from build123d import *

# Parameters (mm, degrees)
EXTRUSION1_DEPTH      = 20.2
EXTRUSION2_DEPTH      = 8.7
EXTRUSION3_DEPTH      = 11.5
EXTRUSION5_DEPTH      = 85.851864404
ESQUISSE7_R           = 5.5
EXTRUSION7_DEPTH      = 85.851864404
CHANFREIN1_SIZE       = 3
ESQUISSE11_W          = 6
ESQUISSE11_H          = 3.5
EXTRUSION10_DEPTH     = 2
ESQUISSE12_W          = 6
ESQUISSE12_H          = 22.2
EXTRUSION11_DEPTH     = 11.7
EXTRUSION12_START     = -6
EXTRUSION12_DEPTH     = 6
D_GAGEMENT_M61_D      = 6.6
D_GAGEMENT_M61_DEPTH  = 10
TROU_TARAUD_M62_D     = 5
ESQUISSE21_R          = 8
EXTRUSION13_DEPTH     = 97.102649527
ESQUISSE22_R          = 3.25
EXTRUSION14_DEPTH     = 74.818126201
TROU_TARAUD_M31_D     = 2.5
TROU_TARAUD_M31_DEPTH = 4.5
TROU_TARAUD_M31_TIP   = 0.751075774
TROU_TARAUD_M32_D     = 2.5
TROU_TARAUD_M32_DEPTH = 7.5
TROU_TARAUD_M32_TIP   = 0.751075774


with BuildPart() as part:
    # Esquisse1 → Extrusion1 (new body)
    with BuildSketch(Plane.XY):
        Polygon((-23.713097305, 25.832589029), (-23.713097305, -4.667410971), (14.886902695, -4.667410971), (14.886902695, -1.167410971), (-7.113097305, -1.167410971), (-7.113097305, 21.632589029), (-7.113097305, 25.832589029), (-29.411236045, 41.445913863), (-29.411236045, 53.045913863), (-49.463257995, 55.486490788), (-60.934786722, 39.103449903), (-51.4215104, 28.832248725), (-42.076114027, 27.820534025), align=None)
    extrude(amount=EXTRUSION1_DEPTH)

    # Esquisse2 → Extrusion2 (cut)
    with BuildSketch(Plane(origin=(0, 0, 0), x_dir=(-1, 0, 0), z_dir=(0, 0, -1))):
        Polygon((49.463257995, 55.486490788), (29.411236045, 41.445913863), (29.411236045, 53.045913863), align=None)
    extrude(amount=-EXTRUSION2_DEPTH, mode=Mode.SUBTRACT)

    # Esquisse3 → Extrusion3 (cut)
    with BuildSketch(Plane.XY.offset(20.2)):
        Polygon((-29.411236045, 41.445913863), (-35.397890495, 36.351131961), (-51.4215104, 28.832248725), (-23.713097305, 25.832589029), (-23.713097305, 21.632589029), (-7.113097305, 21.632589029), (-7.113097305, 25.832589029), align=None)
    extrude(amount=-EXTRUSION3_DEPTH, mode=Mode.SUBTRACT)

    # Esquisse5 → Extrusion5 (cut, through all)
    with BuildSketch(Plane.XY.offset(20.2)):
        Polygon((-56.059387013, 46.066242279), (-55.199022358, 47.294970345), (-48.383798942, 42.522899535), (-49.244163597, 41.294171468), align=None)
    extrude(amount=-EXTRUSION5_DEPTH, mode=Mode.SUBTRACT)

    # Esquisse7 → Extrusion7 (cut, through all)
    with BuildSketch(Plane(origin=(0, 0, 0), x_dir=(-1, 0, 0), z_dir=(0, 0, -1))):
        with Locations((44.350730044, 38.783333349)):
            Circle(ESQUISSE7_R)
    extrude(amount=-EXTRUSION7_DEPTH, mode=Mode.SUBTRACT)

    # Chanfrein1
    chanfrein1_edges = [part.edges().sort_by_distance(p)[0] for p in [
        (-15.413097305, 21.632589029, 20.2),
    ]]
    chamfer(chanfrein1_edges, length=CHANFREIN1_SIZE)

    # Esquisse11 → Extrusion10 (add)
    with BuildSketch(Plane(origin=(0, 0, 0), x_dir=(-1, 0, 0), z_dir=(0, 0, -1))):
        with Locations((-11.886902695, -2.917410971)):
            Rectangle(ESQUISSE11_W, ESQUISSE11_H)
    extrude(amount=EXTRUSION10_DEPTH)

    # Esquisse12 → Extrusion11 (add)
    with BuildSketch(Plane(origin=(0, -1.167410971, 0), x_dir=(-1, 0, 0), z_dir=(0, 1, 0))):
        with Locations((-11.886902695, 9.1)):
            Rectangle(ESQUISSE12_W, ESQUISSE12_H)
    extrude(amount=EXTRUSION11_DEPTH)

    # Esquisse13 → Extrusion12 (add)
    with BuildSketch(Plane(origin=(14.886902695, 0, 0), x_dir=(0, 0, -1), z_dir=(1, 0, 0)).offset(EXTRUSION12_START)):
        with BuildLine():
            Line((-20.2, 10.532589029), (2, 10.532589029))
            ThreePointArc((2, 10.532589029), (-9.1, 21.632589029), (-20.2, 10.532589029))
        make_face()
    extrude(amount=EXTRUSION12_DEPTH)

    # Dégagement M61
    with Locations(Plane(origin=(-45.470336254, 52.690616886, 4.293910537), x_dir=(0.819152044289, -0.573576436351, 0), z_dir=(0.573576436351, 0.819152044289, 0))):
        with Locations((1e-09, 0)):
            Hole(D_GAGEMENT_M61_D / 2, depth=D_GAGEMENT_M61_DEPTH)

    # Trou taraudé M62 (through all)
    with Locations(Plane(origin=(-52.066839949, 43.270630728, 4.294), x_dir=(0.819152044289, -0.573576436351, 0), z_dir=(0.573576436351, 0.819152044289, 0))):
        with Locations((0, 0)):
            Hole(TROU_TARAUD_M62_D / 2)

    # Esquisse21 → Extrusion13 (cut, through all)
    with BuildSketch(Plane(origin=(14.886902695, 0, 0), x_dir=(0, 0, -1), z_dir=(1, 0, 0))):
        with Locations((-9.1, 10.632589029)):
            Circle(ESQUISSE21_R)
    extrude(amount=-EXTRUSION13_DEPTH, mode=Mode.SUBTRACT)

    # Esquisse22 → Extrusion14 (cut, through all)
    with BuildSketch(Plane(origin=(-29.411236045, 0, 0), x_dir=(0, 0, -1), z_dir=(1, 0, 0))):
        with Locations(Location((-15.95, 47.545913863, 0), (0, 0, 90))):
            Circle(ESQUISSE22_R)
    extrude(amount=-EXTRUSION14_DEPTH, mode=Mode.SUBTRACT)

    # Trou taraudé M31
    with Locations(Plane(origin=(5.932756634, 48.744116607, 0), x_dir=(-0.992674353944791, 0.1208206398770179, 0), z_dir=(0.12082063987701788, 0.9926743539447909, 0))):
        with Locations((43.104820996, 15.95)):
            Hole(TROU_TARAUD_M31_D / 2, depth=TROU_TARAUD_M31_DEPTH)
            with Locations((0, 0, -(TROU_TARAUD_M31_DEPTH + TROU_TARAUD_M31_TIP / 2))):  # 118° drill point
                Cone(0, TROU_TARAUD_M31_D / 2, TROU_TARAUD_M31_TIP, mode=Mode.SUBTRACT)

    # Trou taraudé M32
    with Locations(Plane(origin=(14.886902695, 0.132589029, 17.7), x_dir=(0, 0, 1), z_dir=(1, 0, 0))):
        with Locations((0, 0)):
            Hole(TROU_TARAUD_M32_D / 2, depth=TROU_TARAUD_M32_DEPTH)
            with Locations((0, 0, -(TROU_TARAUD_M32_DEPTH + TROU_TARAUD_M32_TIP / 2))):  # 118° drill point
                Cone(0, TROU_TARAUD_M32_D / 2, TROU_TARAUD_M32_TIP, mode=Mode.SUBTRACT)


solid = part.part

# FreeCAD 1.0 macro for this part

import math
import FreeCAD as App
import Part
import Sketcher
from FreeCAD import Vector
Q = App.Units.Quantity


def edges_at(feature, points):
    """Names of the edges that pass closest to the given points."""
    edges = feature.Shape.Edges
    near = lambda p: min(range(len(edges)), key=lambda i: edges[i].distToShape(Part.Vertex(*p))[0])
    return sorted({f"Edge{near(p) + 1}" for p in points})

doc = App.newDocument("Part")
body = doc.addObject("PartDesign::Body", "Body")

# Sketch on XY plane
sketch1 = doc.addObject("Sketcher::SketchObject", "Sketch")
body.addObject(sketch1)
sketch1.AttachmentSupport = (doc.XY_Plane, [""])
sketch1.MapMode = "FlatFace"
sketch1.addGeometry(Part.LineSegment(Vector(-23.713097, 25.832589, 0), Vector(-23.713097, -4.667411, 0)), False)
sketch1.addGeometry(Part.LineSegment(Vector(-23.713097, -4.667411, 0), Vector(14.886903, -4.667411, 0)), False)
sketch1.addGeometry(Part.LineSegment(Vector(14.886903, -4.667411, 0), Vector(14.886903, -1.167411, 0)), False)
sketch1.addGeometry(Part.LineSegment(Vector(14.886903, -1.167411, 0), Vector(-7.113097, -1.167411, 0)), False)
sketch1.addGeometry(Part.LineSegment(Vector(-7.113097, -1.167411, 0), Vector(-7.113097, 25.832589, 0)), False)
sketch1.addGeometry(Part.LineSegment(Vector(-7.113097, 25.832589, 0), Vector(-29.411236, 41.445914, 0)), False)
sketch1.addGeometry(Part.LineSegment(Vector(-29.411236, 41.445914, 0), Vector(-29.411236, 53.045914, 0)), False)
sketch1.addGeometry(Part.LineSegment(Vector(-29.411236, 53.045914, 0), Vector(-49.463258, 55.486491, 0)), False)
sketch1.addGeometry(Part.LineSegment(Vector(-49.463258, 55.486491, 0), Vector(-60.934787, 39.10345, 0)), False)
sketch1.addGeometry(Part.LineSegment(Vector(-60.934787, 39.10345, 0), Vector(-51.42151, 28.832249, 0)), False)
sketch1.addGeometry(Part.LineSegment(Vector(-51.42151, 28.832249, 0), Vector(-42.076114, 27.820534, 0)), False)
sketch1.addGeometry(Part.LineSegment(Vector(-42.076114, 27.820534, 0), Vector(-23.713097, 25.832589, 0)), False)
sketch1.addConstraint(Sketcher.Constraint("Coincident", 0, 2, 1, 1))
sketch1.addConstraint(Sketcher.Constraint("Coincident", 1, 2, 2, 1))
sketch1.addConstraint(Sketcher.Constraint("Coincident", 2, 2, 3, 1))
sketch1.addConstraint(Sketcher.Constraint("Coincident", 3, 2, 4, 1))
sketch1.addConstraint(Sketcher.Constraint("Coincident", 4, 2, 5, 1))
sketch1.addConstraint(Sketcher.Constraint("Coincident", 5, 2, 6, 1))
sketch1.addConstraint(Sketcher.Constraint("Coincident", 6, 2, 7, 1))
sketch1.addConstraint(Sketcher.Constraint("Coincident", 7, 2, 8, 1))
sketch1.addConstraint(Sketcher.Constraint("Coincident", 8, 2, 9, 1))
sketch1.addConstraint(Sketcher.Constraint("Coincident", 9, 2, 10, 1))
sketch1.addConstraint(Sketcher.Constraint("Coincident", 10, 2, 11, 1))
sketch1.addConstraint(Sketcher.Constraint("Coincident", 11, 2, 0, 1))
sketch1.addConstraint(Sketcher.Constraint("Vertical", 0))
sketch1.addConstraint(Sketcher.Constraint("Horizontal", 1))
sketch1.addConstraint(Sketcher.Constraint("Vertical", 2))
sketch1.addConstraint(Sketcher.Constraint("Horizontal", 3))
sketch1.addConstraint(Sketcher.Constraint("Vertical", 4))
sketch1.addConstraint(Sketcher.Constraint("Vertical", 6))
sketch1.addConstraint(Sketcher.Constraint("Perpendicular", 5, 8))
sketch1.addConstraint(Sketcher.Constraint("Parallel", 10, 11))
sketch1.addConstraint(Sketcher.Constraint("Horizontal", 4, 2, 11, 2))
sketch1.addConstraint(Sketcher.Constraint("DistanceX", 3, 2, 3, 1, 22.0))
sketch1.addConstraint(Sketcher.Constraint("DistanceY", 4, 1, 4, 2, 27.0))
sketch1.addConstraint(Sketcher.Constraint("Angle", 5, Q("145 deg")))
sketch1.addConstraint(Sketcher.Constraint("Distance", 8, 20.0))
sketch1.addConstraint(Sketcher.Constraint("Distance", 9, 14.0))
sketch1.addConstraint(Sketcher.Constraint("DistanceX", 1, 1, 1, 2, 38.6))
sketch1.addConstraint(Sketcher.Constraint("DistanceY", 0, 2, 0, 1, 30.5))
sketch1.addConstraint(Sketcher.Constraint("DistanceY", 6, 1, 6, 2, 11.6))
sketch1.addConstraint(Sketcher.Constraint("Distance", 7, 20.2))
sketch1.addConstraint(Sketcher.Constraint("Distance", 10, 9.4))
sketch1.addConstraint(Sketcher.Constraint("Distance", 5, 27.221001))
sketch1.addConstraint(Sketcher.Constraint("DistanceY", 4, 2, 7, 2, 29.653902))
sketch1.addConstraint(Sketcher.Constraint("DistanceY", 9, 2, 8, 2, 10.271201))
sketch1.addConstraint(Sketcher.Constraint("DistanceY", 0, 2, -1, 1, 4.667411))
sketch1.addConstraint(Sketcher.Constraint("DistanceX", 9, 2, -1, 1, 51.42151))
pad1 = doc.addObject("PartDesign::Pad", "Pad")
body.addObject(pad1)
pad1.Profile = sketch1
pad1.Length = 20.2

# Sketch on XY plane
sketch2 = doc.addObject("Sketcher::SketchObject", "Sketch001")
body.addObject(sketch2)
sketch2.AttachmentSupport = (doc.XY_Plane, [""])
sketch2.MapMode = "FlatFace"
sketch2.addGeometry(Part.LineSegment(Vector(-29.411236, 41.445914, 0), Vector(-49.463258, 55.486491, 0)), False)
sketch2.addGeometry(Part.LineSegment(Vector(-49.463258, 55.486491, 0), Vector(-29.411236, 53.045914, 0)), False)
sketch2.addGeometry(Part.LineSegment(Vector(-29.411236, 53.045914, 0), Vector(-29.411236, 41.445914, 0)), False)
sketch2.addConstraint(Sketcher.Constraint("Coincident", 0, 2, 1, 1))
sketch2.addConstraint(Sketcher.Constraint("Coincident", 1, 2, 2, 1))
sketch2.addConstraint(Sketcher.Constraint("Coincident", 2, 2, 0, 1))
sketch2.addConstraint(Sketcher.Constraint("Vertical", 2))
sketch2.addConstraint(Sketcher.Constraint("Angle", 0, Q("145 deg")))
sketch2.addConstraint(Sketcher.Constraint("DistanceY", 2, 2, 2, 1, 11.6))
sketch2.addConstraint(Sketcher.Constraint("Distance", 1, 20.2))
sketch2.addConstraint(Sketcher.Constraint("DistanceY", -1, 1, 0, 2, 55.486491))
sketch2.addConstraint(Sketcher.Constraint("DistanceX", 0, 2, -1, 1, 49.463258))
pocket1 = doc.addObject("PartDesign::Pocket", "Pocket")
body.addObject(pocket1)
pocket1.Profile = sketch2
pocket1.Length = 8.7
pocket1.Reversed = True

# Sketch on XY plane
sketch3 = doc.addObject("Sketcher::SketchObject", "Sketch002")
body.addObject(sketch3)
sketch3.AttachmentSupport = (doc.XY_Plane, [""])
sketch3.MapMode = "FlatFace"
sketch3.AttachmentOffset = App.Placement(Vector(0, 0, 20.2), App.Rotation())
sketch3.addGeometry(Part.LineSegment(Vector(-29.411236, 41.445914, 0), Vector(-35.39789, 36.351132, 0)), False)
sketch3.addGeometry(Part.LineSegment(Vector(-35.39789, 36.351132, 0), Vector(-51.42151, 28.832249, 0)), False)
sketch3.addGeometry(Part.LineSegment(Vector(-51.42151, 28.832249, 0), Vector(-23.713097, 25.832589, 0)), False)
sketch3.addGeometry(Part.LineSegment(Vector(-23.713097, 25.832589, 0), Vector(-23.713097, 21.632589, 0)), False)
sketch3.addGeometry(Part.LineSegment(Vector(-23.713097, 21.632589, 0), Vector(-7.113097, 21.632589, 0)), False)
sketch3.addGeometry(Part.LineSegment(Vector(-7.113097, 21.632589, 0), Vector(-7.113097, 25.832589, 0)), False)
sketch3.addGeometry(Part.LineSegment(Vector(-7.113097, 25.832589, 0), Vector(-29.411236, 41.445914, 0)), False)
sketch3.addConstraint(Sketcher.Constraint("Coincident", 0, 2, 1, 1))
sketch3.addConstraint(Sketcher.Constraint("Coincident", 1, 2, 2, 1))
sketch3.addConstraint(Sketcher.Constraint("Coincident", 2, 2, 3, 1))
sketch3.addConstraint(Sketcher.Constraint("Coincident", 3, 2, 4, 1))
sketch3.addConstraint(Sketcher.Constraint("Coincident", 4, 2, 5, 1))
sketch3.addConstraint(Sketcher.Constraint("Coincident", 5, 2, 6, 1))
sketch3.addConstraint(Sketcher.Constraint("Coincident", 6, 2, 0, 1))
sketch3.addConstraint(Sketcher.Constraint("Vertical", 3))
sketch3.addConstraint(Sketcher.Constraint("Horizontal", 4))
sketch3.addConstraint(Sketcher.Constraint("Vertical", 5))
sketch3.addConstraint(Sketcher.Constraint("Horizontal", 2, 2, 5, 2))
sketch3.addConstraint(Sketcher.Constraint("Angle", 6, Q("145 deg")))
sketch3.addConstraint(Sketcher.Constraint("DistanceX", 4, 1, 4, 2, 16.6))
sketch3.addConstraint(Sketcher.Constraint("DistanceY", 3, 2, 3, 1, 4.2))
sketch3.addConstraint(Sketcher.Constraint("Distance", 1, 17.7))
sketch3.addConstraint(Sketcher.Constraint("Distance", 6, 27.221001))
sketch3.addConstraint(Sketcher.Constraint("Distance", 2, 27.870309))
sketch3.addConstraint(Sketcher.Constraint("DistanceX", 0, 2, -1, 1, 35.39789))
sketch3.addConstraint(Sketcher.Constraint("DistanceY", -1, 1, 0, 2, 36.351132))
sketch3.addConstraint(Sketcher.Constraint("DistanceX", 1, 2, -1, 1, 51.42151))
sketch3.addConstraint(Sketcher.Constraint("DistanceY", -1, 1, 2, 2, 25.832589))
pocket2 = doc.addObject("PartDesign::Pocket", "Pocket001")
body.addObject(pocket2)
pocket2.Profile = sketch3
pocket2.Length = 11.5

# Sketch on XY plane
sketch4 = doc.addObject("Sketcher::SketchObject", "Sketch003")
body.addObject(sketch4)
sketch4.AttachmentSupport = (doc.XY_Plane, [""])
sketch4.MapMode = "FlatFace"
sketch4.AttachmentOffset = App.Placement(Vector(0, 0, 20.2), App.Rotation())
sketch4.addGeometry(Part.LineSegment(Vector(-55.199022, 47.29497, 0), Vector(-56.059387, 46.066242, 0)), False)
sketch4.addGeometry(Part.LineSegment(Vector(-56.059387, 46.066242, 0), Vector(-49.244164, 41.294171, 0)), False)
sketch4.addGeometry(Part.LineSegment(Vector(-49.244164, 41.294171, 0), Vector(-48.383799, 42.5229, 0)), False)
sketch4.addGeometry(Part.LineSegment(Vector(-48.383799, 42.5229, 0), Vector(-55.199022, 47.29497, 0)), False)
sketch4.addConstraint(Sketcher.Constraint("Coincident", 0, 2, 1, 1))
sketch4.addConstraint(Sketcher.Constraint("Coincident", 1, 2, 2, 1))
sketch4.addConstraint(Sketcher.Constraint("Coincident", 2, 2, 3, 1))
sketch4.addConstraint(Sketcher.Constraint("Coincident", 3, 2, 0, 1))
sketch4.addConstraint(Sketcher.Constraint("Perpendicular", 0, 1))
sketch4.addConstraint(Sketcher.Constraint("Perpendicular", 1, 2))
sketch4.addConstraint(Sketcher.Constraint("Perpendicular", 2, 3))
sketch4.addConstraint(Sketcher.Constraint("Angle", 0, Q("-125 deg")))
sketch4.addConstraint(Sketcher.Constraint("Distance", 0, 1.5))
sketch4.addConstraint(Sketcher.Constraint("DistanceX", 2, 2, -1, 1, 48.383799))
sketch4.addConstraint(Sketcher.Constraint("DistanceY", -1, 1, 2, 2, 42.5229))
sketch4.addConstraint(Sketcher.Constraint("DistanceY", 1, 2, 3, 2, 6.000799))
pocket3 = doc.addObject("PartDesign::Pocket", "Pocket002")
body.addObject(pocket3)
pocket3.Profile = sketch4
pocket3.Type = "ThroughAll"

# Sketch on XY plane
sketch5 = doc.addObject("Sketcher::SketchObject", "Sketch004")
body.addObject(sketch5)
sketch5.AttachmentSupport = (doc.XY_Plane, [""])
sketch5.MapMode = "FlatFace"
sketch5.addGeometry(Part.Circle(Vector(-44.35073, 38.783333, 0), Vector(0, 0, 1), 5.5), False)
sketch5.addConstraint(Sketcher.Constraint("Diameter", 0, 11.0))
sketch5.addConstraint(Sketcher.Constraint("DistanceX", 0, 3, -1, 1, 44.35073))
sketch5.addConstraint(Sketcher.Constraint("DistanceY", -1, 1, 0, 3, 38.783333))
pocket4 = doc.addObject("PartDesign::Pocket", "Pocket003")
body.addObject(pocket4)
pocket4.Profile = sketch5
pocket4.Type = "ThroughAll"
pocket4.Reversed = True
doc.recompute()

chamfer = doc.addObject("PartDesign::Chamfer", "Chamfer")
body.addObject(chamfer)
chamfer.Base = (pocket4, edges_at(pocket4, [(-15.413, 21.633, 20.2)]))
chamfer.Size = 3

# Sketch on XY plane
sketch6 = doc.addObject("Sketcher::SketchObject", "Sketch005")
body.addObject(sketch6)
sketch6.AttachmentSupport = (doc.XY_Plane, [""])
sketch6.MapMode = "FlatFace"
sketch6.addGeometry(Part.LineSegment(Vector(14.886903, -1.167411, 0), Vector(14.886903, -4.667411, 0)), False)
sketch6.addGeometry(Part.LineSegment(Vector(14.886903, -4.667411, 0), Vector(8.886903, -4.667411, 0)), False)
sketch6.addGeometry(Part.LineSegment(Vector(8.886903, -4.667411, 0), Vector(8.886903, -1.167411, 0)), False)
sketch6.addGeometry(Part.LineSegment(Vector(8.886903, -1.167411, 0), Vector(14.886903, -1.167411, 0)), False)
sketch6.addConstraint(Sketcher.Constraint("Coincident", 0, 2, 1, 1))
sketch6.addConstraint(Sketcher.Constraint("Coincident", 1, 2, 2, 1))
sketch6.addConstraint(Sketcher.Constraint("Coincident", 2, 2, 3, 1))
sketch6.addConstraint(Sketcher.Constraint("Coincident", 3, 2, 0, 1))
sketch6.addConstraint(Sketcher.Constraint("Vertical", 0))
sketch6.addConstraint(Sketcher.Constraint("Horizontal", 1))
sketch6.addConstraint(Sketcher.Constraint("Vertical", 2))
sketch6.addConstraint(Sketcher.Constraint("Horizontal", 3))
sketch6.addConstraint(Sketcher.Constraint("DistanceX", 1, 2, 1, 1, 6.0))
sketch6.addConstraint(Sketcher.Constraint("DistanceY", 0, 2, 0, 1, 3.5))
sketch6.addConstraint(Sketcher.Constraint("DistanceY", 0, 2, -1, 1, 4.667411))
sketch6.addConstraint(Sketcher.Constraint("DistanceX", -1, 1, 0, 2, 14.886903))
pad2 = doc.addObject("PartDesign::Pad", "Pad001")
body.addObject(pad2)
pad2.Profile = sketch6
pad2.Length = 2
pad2.Reversed = True

# Sketch on XZ plane
sketch7 = doc.addObject("Sketcher::SketchObject", "Sketch006")
body.addObject(sketch7)
sketch7.AttachmentSupport = (doc.XZ_Plane, [""])
sketch7.MapMode = "FlatFace"
sketch7.AttachmentOffset = App.Placement(Vector(0, 0, 1.167411), App.Rotation())
sketch7.addGeometry(Part.LineSegment(Vector(14.886903, 20.2, 0), Vector(14.886903, -2, 0)), False)
sketch7.addGeometry(Part.LineSegment(Vector(14.886903, -2, 0), Vector(8.886903, -2, 0)), False)
sketch7.addGeometry(Part.LineSegment(Vector(8.886903, -2, 0), Vector(8.886903, 20.2, 0)), False)
sketch7.addGeometry(Part.LineSegment(Vector(8.886903, 20.2, 0), Vector(14.886903, 20.2, 0)), False)
sketch7.addConstraint(Sketcher.Constraint("Coincident", 0, 2, 1, 1))
sketch7.addConstraint(Sketcher.Constraint("Coincident", 1, 2, 2, 1))
sketch7.addConstraint(Sketcher.Constraint("Coincident", 2, 2, 3, 1))
sketch7.addConstraint(Sketcher.Constraint("Coincident", 3, 2, 0, 1))
sketch7.addConstraint(Sketcher.Constraint("Vertical", 0))
sketch7.addConstraint(Sketcher.Constraint("Horizontal", 1))
sketch7.addConstraint(Sketcher.Constraint("Vertical", 2))
sketch7.addConstraint(Sketcher.Constraint("Horizontal", 3))
sketch7.addConstraint(Sketcher.Constraint("DistanceX", 1, 2, 1, 1, 6.0))
sketch7.addConstraint(Sketcher.Constraint("DistanceY", 0, 2, 0, 1, 22.2))
sketch7.addConstraint(Sketcher.Constraint("DistanceY", 0, 2, -1, 1, 2.0))
sketch7.addConstraint(Sketcher.Constraint("DistanceX", -1, 1, 0, 2, 14.886903))
pad3 = doc.addObject("PartDesign::Pad", "Pad002")
body.addObject(pad3)
pad3.Profile = sketch7
pad3.Length = 11.7
pad3.Reversed = True

# Sketch on YZ plane
sketch8 = doc.addObject("Sketcher::SketchObject", "Sketch007")
body.addObject(sketch8)
sketch8.AttachmentSupport = (doc.YZ_Plane, [""])
sketch8.MapMode = "FlatFace"
sketch8.AttachmentOffset = App.Placement(Vector(0, 0, 8.886903), App.Rotation())
sketch8.addGeometry(Part.LineSegment(Vector(10.532589, 20.2, 0), Vector(10.532589, -2, 0)), False)
sketch8.addGeometry(Part.ArcOfCircle(Part.Circle(Vector(10.532589, 9.1, 0), Vector(0, 0, 1), 11.1), math.radians(-90), math.radians(90)), False)
sketch8.addConstraint(Sketcher.Constraint("Coincident", 0, 1, 1, 2))
sketch8.addConstraint(Sketcher.Constraint("Coincident", 1, 1, 0, 2))
sketch8.addConstraint(Sketcher.Constraint("Vertical", 0))
sketch8.addConstraint(Sketcher.Constraint("Vertical", 1, 3, 0, 1))
sketch8.addConstraint(Sketcher.Constraint("Radius", 1, 11.1))
sketch8.addConstraint(Sketcher.Constraint("DistanceY", 1, 1, -1, 1, 2.0))
sketch8.addConstraint(Sketcher.Constraint("DistanceX", -1, 1, 1, 3, 10.532589))
pad4 = doc.addObject("PartDesign::Pad", "Pad003")
body.addObject(pad4)
pad4.Profile = sketch8
pad4.Length = 6

# Sketch on an angled plane
sketch9 = doc.addObject("Sketcher::SketchObject", "Sketch008")
body.addObject(sketch9)
sketch9.Placement = App.Placement(Vector(9.797209, 13.991865, 0), App.Rotation(Vector(0.819152044, -0.573576436, 0), Vector(0, 0, -0.999999999), Vector(0.573576436, 0.819152044, 0), "ZXY"))
sketch9.addGeometry(Part.Circle(Vector(-67.469215, -4.293911, 0), Vector(0, 0, 1), 3.3), False)
sketch9.addConstraint(Sketcher.Constraint("Diameter", 0, 6.6))
sketch9.addConstraint(Sketcher.Constraint("DistanceY", 0, 3, -1, 1, 4.293911))
sketch9.addConstraint(Sketcher.Constraint("DistanceX", 0, 3, -1, 1, 67.469215))
doc.recompute()
hole = doc.addObject("PartDesign::Hole", "Hole")
body.addObject(hole)
hole.Profile = sketch9
hole.ThreadType = "None"
hole.Diameter = 6.6
hole.DepthType = "Dimension"
hole.Depth = 10
hole.DrillPoint = "Flat"

# Sketch on an angled plane
sketch10 = doc.addObject("Sketcher::SketchObject", "Sketch009")
body.addObject(sketch10)
sketch10.Placement = App.Placement(Vector(3.20108, 4.571616, 0), App.Rotation(Vector(0.819152044, -0.573576436, 0), Vector(0, 0, -0.999999999), Vector(0.573576436, 0.819152044, 0), "ZXY"))
sketch10.addGeometry(Part.Circle(Vector(-67.469672, -4.294, 0), Vector(0, 0, 1), 2.5), False)
sketch10.addConstraint(Sketcher.Constraint("Diameter", 0, 5.0))
sketch10.addConstraint(Sketcher.Constraint("DistanceY", 0, 3, -1, 1, 4.294))
sketch10.addConstraint(Sketcher.Constraint("DistanceX", 0, 3, -1, 1, 67.469672))
doc.recompute()
hole2 = doc.addObject("PartDesign::Hole", "Hole001")
body.addObject(hole2)
hole2.Profile = sketch10
hole2.ThreadType = "None"
hole2.Diameter = 5
hole2.DepthType = "ThroughAll"

# Sketch on YZ plane
sketch11 = doc.addObject("Sketcher::SketchObject", "Sketch010")
body.addObject(sketch11)
sketch11.AttachmentSupport = (doc.YZ_Plane, [""])
sketch11.MapMode = "FlatFace"
sketch11.AttachmentOffset = App.Placement(Vector(0, 0, 14.886903), App.Rotation())
sketch11.addGeometry(Part.Circle(Vector(10.632589, 9.1, 0), Vector(0, 0, 1), 8), False)
sketch11.addConstraint(Sketcher.Constraint("Diameter", 0, 16.0))
sketch11.addConstraint(Sketcher.Constraint("DistanceY", -1, 1, 0, 3, 9.1))
sketch11.addConstraint(Sketcher.Constraint("DistanceX", -1, 1, 0, 3, 10.632589))
pocket5 = doc.addObject("PartDesign::Pocket", "Pocket004")
body.addObject(pocket5)
pocket5.Profile = sketch11
pocket5.Type = "ThroughAll"

# Sketch on YZ plane
sketch12 = doc.addObject("Sketcher::SketchObject", "Sketch011")
body.addObject(sketch12)
sketch12.AttachmentSupport = (doc.YZ_Plane, [""])
sketch12.MapMode = "FlatFace"
sketch12.AttachmentOffset = App.Placement(Vector(0, 0, -29.411236), App.Rotation())
sketch12.addGeometry(Part.Circle(Vector(47.545914, 15.95, 0), Vector(0, 0, 1), 3.25), False)
sketch12.addConstraint(Sketcher.Constraint("Diameter", 0, 6.5))
sketch12.addConstraint(Sketcher.Constraint("DistanceY", -1, 1, 0, 3, 15.95))
sketch12.addConstraint(Sketcher.Constraint("DistanceX", -1, 1, 0, 3, 47.545914))
pocket6 = doc.addObject("PartDesign::Pocket", "Pocket005")
body.addObject(pocket6)
pocket6.Profile = sketch12
pocket6.Type = "ThroughAll"

# Sketch on an angled plane
sketch13 = doc.addObject("Sketcher::SketchObject", "Sketch012")
body.addObject(sketch13)
sketch13.Placement = App.Placement(Vector(5.932757, 48.744117, 0), App.Rotation(Vector(-0.992674354, 0.12082064, 0), Vector(0, 0, 1), Vector(0.12082064, 0.992674354, 0), "ZXY"))
sketch13.addGeometry(Part.Circle(Vector(43.104821, 15.95, 0), Vector(0, 0, 1), 1.25), False)
sketch13.addConstraint(Sketcher.Constraint("Diameter", 0, 2.5))
sketch13.addConstraint(Sketcher.Constraint("DistanceY", -1, 1, 0, 3, 15.95))
sketch13.addConstraint(Sketcher.Constraint("DistanceX", -1, 1, 0, 3, 43.104821))
doc.recompute()
hole3 = doc.addObject("PartDesign::Hole", "Hole002")
body.addObject(hole3)
hole3.Profile = sketch13
hole3.ThreadType = "None"
hole3.Diameter = 2.5
hole3.DepthType = "Dimension"
hole3.Depth = 4.5
hole3.DrillPoint = "Angled"
hole3.DrillPointAngle = 118

# Sketch on YZ plane
sketch14 = doc.addObject("Sketcher::SketchObject", "Sketch013")
body.addObject(sketch14)
sketch14.AttachmentSupport = (doc.YZ_Plane, [""])
sketch14.MapMode = "FlatFace"
sketch14.AttachmentOffset = App.Placement(Vector(0, 0, 14.886903), App.Rotation())
sketch14.addGeometry(Part.Circle(Vector(0.132589, 17.7, 0), Vector(0, 0, 1), 1.25), False)
sketch14.addConstraint(Sketcher.Constraint("Diameter", 0, 2.5))
sketch14.addConstraint(Sketcher.Constraint("DistanceY", -1, 1, 0, 3, 17.7))
sketch14.addConstraint(Sketcher.Constraint("DistanceX", -1, 1, 0, 3, 0.132589))
doc.recompute()
hole4 = doc.addObject("PartDesign::Hole", "Hole003")
body.addObject(hole4)
hole4.Profile = sketch14
hole4.ThreadType = "None"
hole4.Diameter = 2.5
hole4.DepthType = "Dimension"
hole4.Depth = 7.5
hole4.DrillPoint = "Angled"
hole4.DrillPointAngle = 118

doc.recompute()
